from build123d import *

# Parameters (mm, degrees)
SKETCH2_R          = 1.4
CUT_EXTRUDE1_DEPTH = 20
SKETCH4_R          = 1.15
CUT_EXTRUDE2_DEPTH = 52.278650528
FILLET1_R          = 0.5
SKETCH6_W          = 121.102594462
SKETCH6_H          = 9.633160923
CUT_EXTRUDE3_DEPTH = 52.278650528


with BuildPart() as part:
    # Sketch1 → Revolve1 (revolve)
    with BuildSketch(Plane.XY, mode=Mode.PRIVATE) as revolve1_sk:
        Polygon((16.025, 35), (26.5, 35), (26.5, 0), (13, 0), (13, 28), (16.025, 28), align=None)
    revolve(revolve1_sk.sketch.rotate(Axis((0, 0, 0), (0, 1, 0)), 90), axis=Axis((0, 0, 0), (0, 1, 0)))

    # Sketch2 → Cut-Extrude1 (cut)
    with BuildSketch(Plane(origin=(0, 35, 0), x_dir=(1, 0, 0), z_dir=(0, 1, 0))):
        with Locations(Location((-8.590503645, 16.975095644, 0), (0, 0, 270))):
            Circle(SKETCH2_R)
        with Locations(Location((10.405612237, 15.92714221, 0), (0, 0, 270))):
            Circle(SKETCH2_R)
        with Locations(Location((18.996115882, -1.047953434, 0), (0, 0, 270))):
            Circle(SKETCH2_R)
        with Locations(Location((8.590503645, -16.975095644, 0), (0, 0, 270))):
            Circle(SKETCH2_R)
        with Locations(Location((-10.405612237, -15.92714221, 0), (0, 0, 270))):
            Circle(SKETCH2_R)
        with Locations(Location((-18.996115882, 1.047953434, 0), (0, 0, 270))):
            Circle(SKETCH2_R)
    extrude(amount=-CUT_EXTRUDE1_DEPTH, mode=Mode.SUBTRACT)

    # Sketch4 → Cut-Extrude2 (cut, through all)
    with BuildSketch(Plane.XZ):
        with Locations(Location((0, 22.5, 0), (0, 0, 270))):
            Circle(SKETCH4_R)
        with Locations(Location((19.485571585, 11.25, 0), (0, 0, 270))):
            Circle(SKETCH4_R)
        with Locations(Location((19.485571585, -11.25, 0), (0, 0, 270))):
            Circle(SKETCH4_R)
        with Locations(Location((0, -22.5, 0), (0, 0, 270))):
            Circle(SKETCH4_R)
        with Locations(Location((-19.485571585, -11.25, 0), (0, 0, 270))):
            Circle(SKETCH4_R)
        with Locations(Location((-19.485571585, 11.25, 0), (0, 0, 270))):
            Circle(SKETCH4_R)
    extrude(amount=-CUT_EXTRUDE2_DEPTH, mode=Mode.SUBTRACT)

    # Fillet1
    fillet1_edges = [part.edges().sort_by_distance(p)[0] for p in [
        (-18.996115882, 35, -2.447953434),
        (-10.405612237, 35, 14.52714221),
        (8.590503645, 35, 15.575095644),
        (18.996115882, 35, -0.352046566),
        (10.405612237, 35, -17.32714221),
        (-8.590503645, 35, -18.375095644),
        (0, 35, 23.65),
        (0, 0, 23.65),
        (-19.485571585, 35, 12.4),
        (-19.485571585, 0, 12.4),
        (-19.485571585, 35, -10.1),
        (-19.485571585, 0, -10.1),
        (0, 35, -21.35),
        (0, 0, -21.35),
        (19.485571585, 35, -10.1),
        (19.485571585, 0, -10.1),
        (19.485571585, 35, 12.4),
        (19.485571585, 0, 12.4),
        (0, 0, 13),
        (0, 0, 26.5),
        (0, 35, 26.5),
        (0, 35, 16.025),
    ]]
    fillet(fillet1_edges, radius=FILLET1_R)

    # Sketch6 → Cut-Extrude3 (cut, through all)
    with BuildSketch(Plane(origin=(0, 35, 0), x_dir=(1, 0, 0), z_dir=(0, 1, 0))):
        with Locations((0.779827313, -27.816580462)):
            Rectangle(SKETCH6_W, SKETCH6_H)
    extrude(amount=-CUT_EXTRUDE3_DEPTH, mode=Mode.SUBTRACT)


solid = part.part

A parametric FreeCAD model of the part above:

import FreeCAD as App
import Part
import Sketcher

V = App.Vector


def edges_at(feature, points):
    """Names of the edges that pass closest to the given points."""
    edges = feature.Shape.Edges
    near = lambda p: min(range(len(edges)), key=lambda i: edges[i].distToShape(Part.Vertex(*p))[0])
    return sorted({f"Edge{near(p) + 1}" for p in points})

doc = App.newDocument("Part")
body = doc.addObject("PartDesign::Body", "Body")

sketch1 = body.newObject("Sketcher::SketchObject", "Sketch")
sketch1.AttachmentSupport = (doc.getObject("XY_Plane"), [""])
sketch1.MapMode = "FlatFace"
sketch1.addGeometry(Part.LineSegment(V(26.5, 35, 0), V(16, 35, 0)), False)
sketch1.addGeometry(Part.LineSegment(V(16, 35, 0), V(16, 28, 0)), False)
sketch1.addGeometry(Part.LineSegment(V(16, 28, 0), V(13, 28, 0)), False)
sketch1.addGeometry(Part.LineSegment(V(13, 28, 0), V(13, 0, 0)), False)
sketch1.addGeometry(Part.LineSegment(V(13, 0, 0), V(26.5, 0, 0)), False)
sketch1.addGeometry(Part.LineSegment(V(26.5, 0, 0), V(26.5, 35, 0)), False)
sketch1.addConstraint(Sketcher.Constraint("Coincident", 0, 2, 1, 1))
sketch1.addConstraint(Sketcher.Constraint("Coincident", 1, 2, 2, 1))
sketch1.addConstraint(Sketcher.Constraint("Coincident", 2, 2, 3, 1))
sketch1.addConstraint(Sketcher.Constraint("Coincident", 3, 2, 4, 1))
sketch1.addConstraint(Sketcher.Constraint("Coincident", 4, 2, 5, 1))
sketch1.addConstraint(Sketcher.Constraint("Coincident", 5, 2, 0, 1))
sketch1.addConstraint(Sketcher.Constraint("Horizontal", 0))
sketch1.addConstraint(Sketcher.Constraint("Vertical", 1))
sketch1.addConstraint(Sketcher.Constraint("Horizontal", 2))
sketch1.addConstraint(Sketcher.Constraint("Vertical", 3))
sketch1.addConstraint(Sketcher.Constraint("Horizontal", 4))
sketch1.addConstraint(Sketcher.Constraint("Vertical", 5))
sketch1.addConstraint(Sketcher.Constraint("PointOnObject", 3, 2, -1))
sketch1.addConstraint(Sketcher.Constraint("DistanceY", 1, 2, 1, 1, 7.0))
sketch1.addConstraint(Sketcher.Constraint("DistanceY", 3, 2, 3, 1, 28.0))
sketch1.addConstraint(Sketcher.Constraint("DistanceX", 4, 1, 4, 2, 13.5))
sketch1.addConstraint(Sketcher.Constraint("DistanceX", -1, 1, 2, 2, 13.0))
sketch1.addConstraint(Sketcher.Constraint("DistanceX", 0, 2, 0, 1, 10.475))
revolution = body.newObject("PartDesign::Revolution", "Revolution")
revolution.Profile = sketch1
revolution.ReferenceAxis = (sketch1, ["V_Axis"])
revolution.Angle = 360

sketch2 = body.newObject("Sketcher::SketchObject", "Sketch001")
sketch2.AttachmentSupport = (doc.getObject("XZ_Plane"), [""])
sketch2.MapMode = "FlatFace"
sketch2.AttachmentOffset = App.Placement(V(0, 0, -35), App.Rotation())
sketch2.addGeometry(Part.Circle(V(-8.6, -17, 0), V(0, 0, 1), 1.4), False)
sketch2.addGeometry(Part.Circle(V(10.4, -15.9, 0), V(0, 0, 1), 1.4), False)
sketch2.addGeometry(Part.Circle(V(19, 1, 0), V(0, 0, 1), 1.4), False)
sketch2.addGeometry(Part.Circle(V(8.6, 17, 0), V(0, 0, 1), 1.4), False)
sketch2.addGeometry(Part.Circle(V(-10.4, 15.9, 0), V(0, 0, 1), 1.4), False)
sketch2.addGeometry(Part.Circle(V(-19, -1, 0), V(0, 0, 1), 1.4), False)
sketch2.addConstraint(Sketcher.Constraint("Equal", 0, 1))
sketch2.addConstraint(Sketcher.Constraint("Equal", 1, 2))
sketch2.addConstraint(Sketcher.Constraint("Equal", 2, 3))
sketch2.addConstraint(Sketcher.Constraint("Equal", 3, 4))
sketch2.addConstraint(Sketcher.Constraint("Equal", 4, 5))
sketch2.addConstraint(Sketcher.Constraint("Symmetric", 0, 3, 3, 3, -1, 1))
sketch2.addConstraint(Sketcher.Constraint("Symmetric", 1, 3, 4, 3, -1, 1))
sketch2.addConstraint(Sketcher.Constraint("Symmetric", 2, 3, 5, 3, -1, 1))
sketch2.addConstraint(Sketcher.Constraint("Diameter", 0, 2.8))
sketch2.addConstraint(Sketcher.Constraint("DistanceX", 0, 3, 2, 3, 27.58662))
sketch2.addConstraint(Sketcher.Constraint("DistanceY", 0, 3, 2, 3, 18.023049))
sketch2.addConstraint(Sketcher.Constraint("DistanceX", 3, 3, 1, 3, 1.815109))
sketch2.addConstraint(Sketcher.Constraint("DistanceY", 0, 3, 3, 3, 33.950191))
sketch2.addConstraint(Sketcher.Constraint("DistanceY", 2, 3, 4, 3, 14.879189))
sketch2.addConstraint(Sketcher.Constraint("DistanceX", 5, 3, 2, 3, 37.992232))
pocket1 = body.newObject("PartDesign::Pocket", "Pocket")
pocket1.Profile = sketch2
pocket1.Length = 20
pocket1.Reversed = True

sketch3 = body.newObject("Sketcher::SketchObject", "Sketch002")
sketch3.AttachmentSupport = (doc.getObject("XZ_Plane"), [""])
sketch3.MapMode = "FlatFace"
sketch3.addGeometry(Part.Circle(V(0, 22.5, 0), V(0, 0, 1), 1.1), False)
sketch3.addGeometry(Part.Circle(V(19.5, 11.2, 0), V(0, 0, 1), 1.1), False)
sketch3.addGeometry(Part.Circle(V(19.5, -11.2, 0), V(0, 0, 1), 1.1), False)
sketch3.addGeometry(Part.Circle(V(0, -22.5, 0), V(0, 0, 1), 1.1), False)
sketch3.addGeometry(Part.Circle(V(-19.5, -11.2, 0), V(0, 0, 1), 1.1), False)
sketch3.addGeometry(Part.Circle(V(-19.5, 11.2, 0), V(0, 0, 1), 1.1), False)
sketch3.addConstraint(Sketcher.Constraint("Equal", 0, 1))
sketch3.addConstraint(Sketcher.Constraint("Equal", 1, 2))
sketch3.addConstraint(Sketcher.Constraint("Equal", 2, 3))
sketch3.addConstraint(Sketcher.Constraint("Equal", 3, 4))
sketch3.addConstraint(Sketcher.Constraint("Equal", 4, 5))
sketch3.addConstraint(Sketcher.Constraint("Symmetric", 0, 3, 3, 3, -1, 1))
sketch3.addConstraint(Sketcher.Constraint("Symmetric", 1, 3, 4, 3, -1, 1))
sketch3.addConstraint(Sketcher.Constraint("Symmetric", 2, 3, 5, 3, -1, 1))
sketch3.addConstraint(Sketcher.Constraint("Symmetric", 2, 3, 4, 3, -2))
sketch3.addConstraint(Sketcher.Constraint("PointOnObject", 0, 3, -2))
sketch3.addConstraint(Sketcher.Constraint("Diameter", 0, 2.3))
sketch3.addConstraint(Sketcher.Constraint("DistanceY", 3, 3, 0, 3, 45.0))
sketch3.addConstraint(Sketcher.Constraint("DistanceY", 2, 3, 1, 3, 22.5))
sketch3.addConstraint(Sketcher.Constraint("DistanceX", -1, 1, 1, 3, 19.485572))
pocket2 = body.newObject("PartDesign::Pocket", "Pocket001")
pocket2.Profile = sketch3
pocket2.Type = "ThroughAll"
doc.recompute()

fillet = body.newObject("PartDesign::Fillet", "Fillet")
fillet.Base = (pocket2, edges_at(pocket2, [
    (-18.996, 35, -2.448),
    (-10.406, 35, 14.527),
    (8.591, 35, 15.575),
    (18.996, 35, -0.352),
    (10.406, 35, -17.327),
    (-8.591, 35, -18.375),
    (0, 35, 23.65),
    (0, 0, 23.65),
    (-19.486, 35, 12.4),
    (-19.486, 0, 12.4),
    (-19.486, 35, -10.1),
    (-19.486, 0, -10.1),
    (0, 35, -21.35),
    (0, 0, -21.35),
    (19.486, 35, -10.1),
    (19.486, 0, -10.1),
    (19.486, 35, 12.4),
    (19.486, 0, 12.4),
    (0, 0, 13),
    (0, 0, 26.5),
    (0, 35, 26.5),
    (0, 35, 16.025),
]))
fillet.Radius = 0.5

sketch4 = body.newObject("Sketcher::SketchObject", "Sketch003")
sketch4.AttachmentSupport = (doc.getObject("XZ_Plane"), [""])
sketch4.MapMode = "FlatFace"
sketch4.AttachmentOffset = App.Placement(V(0, 0, -35), App.Rotation())
sketch4.addGeometry(Part.LineSegment(V(-60, 23, 0), V(-60, 33, 0)), False)
sketch4.addGeometry(Part.LineSegment(V(-60, 33, 0), V(61, 33, 0)), False)
sketch4.addGeometry(Part.LineSegment(V(61, 33, 0), V(61, 23, 0)), False)
sketch4.addGeometry(Part.LineSegment(V(61, 23, 0), V(-60, 23, 0)), False)
sketch4.addConstraint(Sketcher.Constraint("Coincident", 0, 2, 1, 1))
sketch4.addConstraint(Sketcher.Constraint("Coincident", 1, 2, 2, 1))
sketch4.addConstraint(Sketcher.Constraint("Coincident", 2, 2, 3, 1))
sketch4.addConstraint(Sketcher.Constraint("Coincident", 3, 2, 0, 1))
sketch4.addConstraint(Sketcher.Constraint("Vertical", 0))
sketch4.addConstraint(Sketcher.Constraint("Horizontal", 1))
sketch4.addConstraint(Sketcher.Constraint("Vertical", 2))
sketch4.addConstraint(Sketcher.Constraint("Horizontal", 3))
sketch4.addConstraint(Sketcher.Constraint("DistanceY", -1, 1, 2, 2, 23.0))
sketch4.addConstraint(Sketcher.Constraint("DistanceY", 0, 1, 0, 2, 9.633161))
sketch4.addConstraint(Sketcher.Constraint("DistanceX", 1, 1, 1, 2, 121.102594))
sketch4.addConstraint(Sketcher.Constraint("DistanceX", 0, 2, -1, 1, 59.77147))
pocket3 = body.newObject("PartDesign::Pocket", "Pocket002")
pocket3.Profile = sketch4
pocket3.Type = "ThroughAll"
pocket3.Reversed = True

doc.recompute()
